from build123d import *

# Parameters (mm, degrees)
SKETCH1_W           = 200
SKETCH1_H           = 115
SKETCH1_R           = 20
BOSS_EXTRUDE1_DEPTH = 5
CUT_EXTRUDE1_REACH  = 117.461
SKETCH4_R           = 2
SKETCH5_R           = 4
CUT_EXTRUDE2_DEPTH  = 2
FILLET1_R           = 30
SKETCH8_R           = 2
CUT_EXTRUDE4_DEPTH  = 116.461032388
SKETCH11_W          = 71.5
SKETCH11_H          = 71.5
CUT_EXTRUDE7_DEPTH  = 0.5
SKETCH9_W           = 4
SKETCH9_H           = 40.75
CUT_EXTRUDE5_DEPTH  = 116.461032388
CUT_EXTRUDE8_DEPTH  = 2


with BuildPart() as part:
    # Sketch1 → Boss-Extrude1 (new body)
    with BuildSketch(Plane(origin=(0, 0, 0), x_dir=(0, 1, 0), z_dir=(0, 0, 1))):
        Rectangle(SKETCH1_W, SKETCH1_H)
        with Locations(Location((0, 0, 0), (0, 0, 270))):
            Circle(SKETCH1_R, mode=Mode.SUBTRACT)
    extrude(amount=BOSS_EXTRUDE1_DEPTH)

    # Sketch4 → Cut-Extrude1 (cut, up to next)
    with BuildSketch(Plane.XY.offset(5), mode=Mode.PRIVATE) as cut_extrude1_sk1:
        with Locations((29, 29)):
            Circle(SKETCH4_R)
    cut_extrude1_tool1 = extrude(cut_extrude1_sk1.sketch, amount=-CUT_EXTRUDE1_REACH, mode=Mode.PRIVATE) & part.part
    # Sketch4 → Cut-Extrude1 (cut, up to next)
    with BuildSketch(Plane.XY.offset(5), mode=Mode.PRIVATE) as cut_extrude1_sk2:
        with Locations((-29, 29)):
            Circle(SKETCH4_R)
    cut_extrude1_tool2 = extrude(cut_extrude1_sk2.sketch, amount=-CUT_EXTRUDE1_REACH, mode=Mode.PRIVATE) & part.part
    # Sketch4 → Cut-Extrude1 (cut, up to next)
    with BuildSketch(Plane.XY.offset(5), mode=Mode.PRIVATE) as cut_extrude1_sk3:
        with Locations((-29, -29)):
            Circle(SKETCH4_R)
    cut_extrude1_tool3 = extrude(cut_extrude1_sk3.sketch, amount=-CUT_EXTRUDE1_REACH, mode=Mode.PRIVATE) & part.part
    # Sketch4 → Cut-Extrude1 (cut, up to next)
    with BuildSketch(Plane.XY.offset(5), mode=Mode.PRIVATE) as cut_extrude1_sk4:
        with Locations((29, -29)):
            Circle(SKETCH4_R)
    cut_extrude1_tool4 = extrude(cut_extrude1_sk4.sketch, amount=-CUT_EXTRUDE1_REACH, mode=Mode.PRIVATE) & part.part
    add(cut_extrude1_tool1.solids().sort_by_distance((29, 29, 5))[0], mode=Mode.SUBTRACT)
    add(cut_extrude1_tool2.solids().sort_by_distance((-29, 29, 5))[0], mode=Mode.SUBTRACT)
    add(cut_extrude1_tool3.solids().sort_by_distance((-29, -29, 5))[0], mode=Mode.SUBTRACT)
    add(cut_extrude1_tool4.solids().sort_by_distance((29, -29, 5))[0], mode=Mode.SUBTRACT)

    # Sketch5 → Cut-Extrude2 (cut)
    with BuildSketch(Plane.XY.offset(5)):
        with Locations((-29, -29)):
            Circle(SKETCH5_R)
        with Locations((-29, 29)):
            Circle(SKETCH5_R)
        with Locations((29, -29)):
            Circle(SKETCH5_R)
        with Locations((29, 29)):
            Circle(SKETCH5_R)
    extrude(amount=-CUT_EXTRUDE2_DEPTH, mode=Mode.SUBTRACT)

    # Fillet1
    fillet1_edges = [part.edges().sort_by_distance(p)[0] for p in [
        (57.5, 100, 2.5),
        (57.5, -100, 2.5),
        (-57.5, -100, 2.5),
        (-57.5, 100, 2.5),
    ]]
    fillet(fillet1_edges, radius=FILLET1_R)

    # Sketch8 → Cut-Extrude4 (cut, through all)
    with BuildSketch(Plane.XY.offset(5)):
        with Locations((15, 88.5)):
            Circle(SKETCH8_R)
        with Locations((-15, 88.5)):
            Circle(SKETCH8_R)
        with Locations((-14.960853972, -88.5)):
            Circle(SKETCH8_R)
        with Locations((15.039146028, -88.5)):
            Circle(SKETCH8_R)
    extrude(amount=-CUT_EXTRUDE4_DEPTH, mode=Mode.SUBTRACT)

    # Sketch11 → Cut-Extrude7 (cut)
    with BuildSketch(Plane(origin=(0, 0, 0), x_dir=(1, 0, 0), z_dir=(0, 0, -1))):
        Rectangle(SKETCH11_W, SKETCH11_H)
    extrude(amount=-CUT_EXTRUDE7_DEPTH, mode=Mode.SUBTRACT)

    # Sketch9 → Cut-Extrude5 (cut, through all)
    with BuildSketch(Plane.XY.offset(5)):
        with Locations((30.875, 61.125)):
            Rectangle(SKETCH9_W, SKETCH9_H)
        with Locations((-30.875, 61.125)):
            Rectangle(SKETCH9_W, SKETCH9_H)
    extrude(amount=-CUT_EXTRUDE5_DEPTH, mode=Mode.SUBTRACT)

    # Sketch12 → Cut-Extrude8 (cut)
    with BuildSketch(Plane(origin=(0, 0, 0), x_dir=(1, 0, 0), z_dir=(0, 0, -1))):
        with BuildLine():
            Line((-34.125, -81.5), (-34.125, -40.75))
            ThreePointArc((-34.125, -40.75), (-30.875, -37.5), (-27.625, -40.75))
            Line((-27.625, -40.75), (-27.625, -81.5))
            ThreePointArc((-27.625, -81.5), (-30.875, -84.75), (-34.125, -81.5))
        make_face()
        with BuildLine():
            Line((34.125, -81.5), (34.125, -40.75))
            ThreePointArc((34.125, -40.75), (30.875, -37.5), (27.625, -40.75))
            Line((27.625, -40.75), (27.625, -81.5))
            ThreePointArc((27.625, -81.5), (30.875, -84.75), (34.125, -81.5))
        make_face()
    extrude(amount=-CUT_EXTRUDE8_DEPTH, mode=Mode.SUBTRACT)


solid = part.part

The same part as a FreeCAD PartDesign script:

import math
import FreeCAD as App
import Part
import Sketcher

V = App.Vector
Q = App.Units.Quantity


def edges_at(feature, points):
    """Names of the edges that pass closest to the given points."""
    edges = feature.Shape.Edges
    near = lambda p: min(range(len(edges)), key=lambda i: edges[i].distToShape(Part.Vertex(*p))[0])
    return sorted({f"Edge{near(p) + 1}" for p in points})

doc = App.newDocument("Part")
params = doc.addObject("Spreadsheet::Sheet", "Params")
for row, (alias, value) in enumerate([
    ("sketch1_diameter", "40 mm"),
    ("sketch1_width", "115 mm"),
    ("sketch1_height", "200 mm"),
    ("pad1_length", "5 mm"),
    ("sketch2_diameter", "4 mm"),
    ("sketch3_diameter", "4 mm"),
    ("sketch4_diameter", "4 mm"),
    ("sketch5_diameter", "4 mm"),
    ("sketch6_diameter", "8 mm"),
    ("pocket5_length", "2 mm"),
    ("fillet_radius", "30 mm"),
    ("sketch7_diameter", "4 mm"),
    ("sketch8_width", "71.5 mm"),
    ("pocket7_length", "0.5 mm"),
    ("sketch9_width", "4 mm"),
    ("sketch9_height", "40.75 mm"),
    ("sketch10_radius", "3.25 mm"),
    ("sketch10_height", "40.75 mm"),
    ("pocket9_length", "2 mm"),
], start=1):
    params.set(f"A{row}", alias)
    params.set(f"B{row}", "=" + value)
    params.setAlias(f"B{row}", alias)

body = doc.addObject("PartDesign::Body", "Body")

# Sketch on XY plane
sketch1 = doc.addObject("Sketcher::SketchObject", "Sketch")
body.addObject(sketch1)
sketch1.AttachmentSupport = (doc.XY_Plane, [""])
sketch1.MapMode = "FlatFace"
sketch1.addGeometry([
    Part.LineSegment(V(-58, -100, 0), V(58, -100, 0)),  # 0
    Part.LineSegment(V(58, -100, 0), V(58, 100, 0)),  # 1
    Part.LineSegment(V(58, 100, 0), V(-58, 100, 0)),  # 2
    Part.LineSegment(V(-58, 100, 0), V(-58, -100, 0)),  # 3
    Part.Circle(V(0, 0, 0), V(0, 0, 1), 20),  # 4
], False)
sketch1.addConstraint([
    Sketcher.Constraint("Coincident", 0, 2, 1, 1),
    Sketcher.Constraint("Coincident", 1, 2, 2, 1),
    Sketcher.Constraint("Coincident", 2, 2, 3, 1),
    Sketcher.Constraint("Coincident", 3, 2, 0, 1),
    Sketcher.Constraint("Horizontal", 0),
    Sketcher.Constraint("Vertical", 1),
    Sketcher.Constraint("Horizontal", 2),
    Sketcher.Constraint("Vertical", 3),
    Sketcher.Constraint("Coincident", 4, 3, -1, 1),
    Sketcher.Constraint("Symmetric", 0, 2, 2, 2, -1, 1),
    Sketcher.Constraint("Diameter", 4, Q("40 mm")),
    Sketcher.Constraint("DistanceX", 0, 1, 0, 2, Q("115 mm")),
    Sketcher.Constraint("DistanceY", 1, 1, 1, 2, Q("200 mm")),
])
sketch1.setExpression("Constraints[10]", "Params.sketch1_diameter")
sketch1.setExpression("Constraints[11]", "Params.sketch1_width")
sketch1.setExpression("Constraints[12]", "Params.sketch1_height")
pad1 = doc.addObject("PartDesign::Pad", "Pad")
body.addObject(pad1)
pad1.Profile = sketch1
pad1.setExpression("Length", "Params.pad1_length")

# Sketch on XY plane
sketch2 = doc.addObject("Sketcher::SketchObject", "Sketch001")
body.addObject(sketch2)
sketch2.AttachmentSupport = (doc.XY_Plane, [""])
sketch2.MapMode = "FlatFace"
sketch2.AttachmentOffset = App.Placement(V(0, 0, 5), App.Rotation())
sketch2.addGeometry(Part.Circle(V(29, 29, 0), V(0, 0, 1), 2), False)
sketch2.addConstraint([
    Sketcher.Constraint("Diameter", 0, Q("4 mm")),
    Sketcher.Constraint("DistanceX", -1, 1, 0, 3, Q("29 mm")),
    Sketcher.Constraint("DistanceY", -1, 1, 0, 3, Q("29 mm")),
])
sketch2.setExpression("Constraints[0]", "Params.sketch2_diameter")
pocket1 = doc.addObject("PartDesign::Pocket", "Pocket")
body.addObject(pocket1)
pocket1.Profile = sketch2
pocket1.Type = "UpToFirst"

# Sketch on XY plane
sketch3 = doc.addObject("Sketcher::SketchObject", "Sketch002")
body.addObject(sketch3)
sketch3.AttachmentSupport = (doc.XY_Plane, [""])
sketch3.MapMode = "FlatFace"
sketch3.AttachmentOffset = App.Placement(V(0, 0, 5), App.Rotation())
sketch3.addGeometry(Part.Circle(V(-29, 29, 0), V(0, 0, 1), 2), False)
sketch3.addConstraint([
    Sketcher.Constraint("Diameter", 0, Q("4 mm")),
    Sketcher.Constraint("DistanceX", 0, 3, -1, 1, Q("29 mm")),
    Sketcher.Constraint("DistanceY", -1, 1, 0, 3, Q("29 mm")),
])
sketch3.setExpression("Constraints[0]", "Params.sketch3_diameter")
pocket2 = doc.addObject("PartDesign::Pocket", "Pocket001")
body.addObject(pocket2)
pocket2.Profile = sketch3
pocket2.Type = "UpToFirst"

# Sketch on XY plane
sketch4 = doc.addObject("Sketcher::SketchObject", "Sketch003")
body.addObject(sketch4)
sketch4.AttachmentSupport = (doc.XY_Plane, [""])
sketch4.MapMode = "FlatFace"
sketch4.AttachmentOffset = App.Placement(V(0, 0, 5), App.Rotation())
sketch4.addGeometry(Part.Circle(V(-29, -29, 0), V(0, 0, 1), 2), False)
sketch4.addConstraint([
    Sketcher.Constraint("Diameter", 0, Q("4 mm")),
    Sketcher.Constraint("DistanceX", 0, 3, -1, 1, Q("29 mm")),
    Sketcher.Constraint("DistanceY", 0, 3, -1, 1, Q("29 mm")),
])
sketch4.setExpression("Constraints[0]", "Params.sketch4_diameter")
pocket3 = doc.addObject("PartDesign::Pocket", "Pocket002")
body.addObject(pocket3)
pocket3.Profile = sketch4
pocket3.Type = "UpToFirst"

# Sketch on XY plane
sketch5 = doc.addObject("Sketcher::SketchObject", "Sketch004")
body.addObject(sketch5)
sketch5.AttachmentSupport = (doc.XY_Plane, [""])
sketch5.MapMode = "FlatFace"
sketch5.AttachmentOffset = App.Placement(V(0, 0, 5), App.Rotation())
sketch5.addGeometry(Part.Circle(V(29, -29, 0), V(0, 0, 1), 2), False)
sketch5.addConstraint([
    Sketcher.Constraint("Diameter", 0, Q("4 mm")),
    Sketcher.Constraint("DistanceX", -1, 1, 0, 3, Q("29 mm")),
    Sketcher.Constraint("DistanceY", 0, 3, -1, 1, Q("29 mm")),
])
sketch5.setExpression("Constraints[0]", "Params.sketch5_diameter")
pocket4 = doc.addObject("PartDesign::Pocket", "Pocket003")
body.addObject(pocket4)
pocket4.Profile = sketch5
pocket4.Type = "UpToFirst"

# Sketch on XY plane
sketch6 = doc.addObject("Sketcher::SketchObject", "Sketch005")
body.addObject(sketch6)
sketch6.AttachmentSupport = (doc.XY_Plane, [""])
sketch6.MapMode = "FlatFace"
sketch6.AttachmentOffset = App.Placement(V(0, 0, 5), App.Rotation())
sketch6.addGeometry([
    Part.Circle(V(-29, -29, 0), V(0, 0, 1), 4),
    Part.Circle(V(-29, 29, 0), V(0, 0, 1), 4),
    Part.Circle(V(29, -29, 0), V(0, 0, 1), 4),
    Part.Circle(V(29, 29, 0), V(0, 0, 1), 4),
], False)
sketch6.addConstraint([
    Sketcher.Constraint("Equal", 0, 1),
    Sketcher.Constraint("Equal", 1, 2),
    Sketcher.Constraint("Equal", 2, 3),
    Sketcher.Constraint("Symmetric", 1, 3, 2, 3, -1, 1),
    Sketcher.Constraint("Symmetric", 0, 3, 3, 3, -1, 1),
    Sketcher.Constraint("Symmetric", 0, 3, 2, 3, -2),
    Sketcher.Constraint("Diameter", 0, Q("8 mm")),
    Sketcher.Constraint("DistanceX", 0, 3, -1, 1, Q("29 mm")),
    Sketcher.Constraint("DistanceY", 0, 3, -1, 1, Q("29 mm")),
])
sketch6.setExpression("Constraints[6]", "Params.sketch6_diameter")
pocket5 = doc.addObject("PartDesign::Pocket", "Pocket004")
body.addObject(pocket5)
pocket5.Profile = sketch6
pocket5.setExpression("Length", "Params.pocket5_length")
doc.recompute()

fillet = doc.addObject("PartDesign::Fillet", "Fillet")
body.addObject(fillet)
fillet.Base = (pocket5, edges_at(pocket5, [
    (57.5, 100, 2.5),
    (57.5, -100, 2.5),
    (-57.5, -100, 2.5),
    (-57.5, 100, 2.5),
]))
fillet.setExpression("Radius", "Params.fillet_radius")

# Sketch on XY plane
sketch7 = doc.addObject("Sketcher::SketchObject", "Sketch006")
body.addObject(sketch7)
sketch7.AttachmentSupport = (doc.XY_Plane, [""])
sketch7.MapMode = "FlatFace"
sketch7.AttachmentOffset = App.Placement(V(0, 0, 5), App.Rotation())
sketch7.addGeometry([
    Part.Circle(V(15, 88.5, 0), V(0, 0, 1), 2),
    Part.Circle(V(-15, 88.5, 0), V(0, 0, 1), 2),
    Part.Circle(V(-15, -88.5, 0), V(0, 0, 1), 2),
    Part.Circle(V(15, -88.5, 0), V(0, 0, 1), 2),
], False)
sketch7.addConstraint([
    Sketcher.Constraint("Equal", 0, 1),
    Sketcher.Constraint("Equal", 1, 2),
    Sketcher.Constraint("Equal", 2, 3),
    Sketcher.Constraint("Symmetric", 0, 3, 1, 3, -2),
    Sketcher.Constraint("Horizontal", 2, 3, 3, 3),
    Sketcher.Constraint("Diameter", 0, Q("4 mm")),
    Sketcher.Constraint("DistanceX", -1, 1, 0, 3, Q("15 mm")),
    Sketcher.Constraint("DistanceY", 2, 3, 1, 3, Q("177 mm")),
    Sketcher.Constraint("DistanceX", 2, 3, 3, 3, Q("30 mm")),
    Sketcher.Constraint("DistanceY", -1, 1, 0, 3, Q("88.5 mm")),
    Sketcher.Constraint("DistanceX", 2, 3, -1, 1, Q("14.960854 mm")),
])
sketch7.setExpression("Constraints[5]", "Params.sketch7_diameter")
pocket6 = doc.addObject("PartDesign::Pocket", "Pocket005")
body.addObject(pocket6)
pocket6.Profile = sketch7
pocket6.Type = "ThroughAll"

# Sketch on XY plane
sketch8 = doc.addObject("Sketcher::SketchObject", "Sketch007")
body.addObject(sketch8)
sketch8.AttachmentSupport = (doc.XY_Plane, [""])
sketch8.MapMode = "FlatFace"
sketch8.addGeometry([
    Part.LineSegment(V(-36, -36, 0), V(-36, 36, 0)),
    Part.LineSegment(V(-36, 36, 0), V(36, 36, 0)),
    Part.LineSegment(V(36, 36, 0), V(36, -36, 0)),
    Part.LineSegment(V(36, -36, 0), V(-36, -36, 0)),
], False)
sketch8.addConstraint([
    Sketcher.Constraint("Coincident", 0, 2, 1, 1),
    Sketcher.Constraint("Coincident", 1, 2, 2, 1),
    Sketcher.Constraint("Coincident", 2, 2, 3, 1),
    Sketcher.Constraint("Coincident", 3, 2, 0, 1),
    Sketcher.Constraint("Vertical", 0),
    Sketcher.Constraint("Horizontal", 1),
    Sketcher.Constraint("Vertical", 2),
    Sketcher.Constraint("Horizontal", 3),
    Sketcher.Constraint("Symmetric", 0, 2, 2, 2, -1, 1),
    Sketcher.Constraint("Equal", 3, 0),
    Sketcher.Constraint("DistanceX", 1, 1, 1, 2, Q("71.5 mm")),
])
sketch8.setExpression("Constraints[10]", "Params.sketch8_width")
pocket7 = doc.addObject("PartDesign::Pocket", "Pocket006")
body.addObject(pocket7)
pocket7.Profile = sketch8
pocket7.setExpression("Length", "Params.pocket7_length")
pocket7.Reversed = True

# Sketch on XY plane
sketch9 = doc.addObject("Sketcher::SketchObject", "Sketch008")
body.addObject(sketch9)
sketch9.AttachmentSupport = (doc.XY_Plane, [""])
sketch9.MapMode = "FlatFace"
sketch9.AttachmentOffset = App.Placement(V(0, 0, 5), App.Rotation())
sketch9.addGeometry([
    Part.LineSegment(V(28.9, 81.5, 0), V(28.9, 40.8, 0)),  # 0
    Part.LineSegment(V(28.9, 40.8, 0), V(32.9, 40.8, 0)),  # 1
    Part.LineSegment(V(32.9, 40.8, 0), V(32.9, 81.5, 0)),  # 2
    Part.LineSegment(V(32.9, 81.5, 0), V(28.9, 81.5, 0)),  # 3
    Part.LineSegment(V(-32.9, 81.5, 0), V(-32.9, 40.8, 0)),  # 4
    Part.LineSegment(V(-32.9, 40.8, 0), V(-28.9, 40.8, 0)),  # 5
    Part.LineSegment(V(-28.9, 40.8, 0), V(-28.9, 81.5, 0)),  # 6
    Part.LineSegment(V(-28.9, 81.5, 0), V(-32.9, 81.5, 0)),  # 7
], False)
sketch9.addConstraint([
    Sketcher.Constraint("Coincident", 0, 2, 1, 1),
    Sketcher.Constraint("Coincident", 1, 2, 2, 1),
    Sketcher.Constraint("Coincident", 2, 2, 3, 1),
    Sketcher.Constraint("Coincident", 3, 2, 0, 1),
    Sketcher.Constraint("Coincident", 4, 2, 5, 1),
    Sketcher.Constraint("Coincident", 5, 2, 6, 1),
    Sketcher.Constraint("Coincident", 6, 2, 7, 1),
    Sketcher.Constraint("Coincident", 7, 2, 4, 1),
    Sketcher.Constraint("Vertical", 0),
    Sketcher.Constraint("Horizontal", 1),
    Sketcher.Constraint("Vertical", 2),
    Sketcher.Constraint("Horizontal", 3),
    Sketcher.Constraint("Vertical", 4),
    Sketcher.Constraint("Horizontal", 5),
    Sketcher.Constraint("Vertical", 6),
    Sketcher.Constraint("Horizontal", 7),
    Sketcher.Constraint("Symmetric", 1, 2, 4, 2, -2),
    Sketcher.Constraint("Symmetric", 3, 2, 6, 2, -2),
    Sketcher.Constraint("DistanceX", 1, 1, 1, 2, Q("4 mm")),
    Sketcher.Constraint("DistanceY", 0, 2, 0, 1, Q("40.75 mm")),
    Sketcher.Constraint("DistanceY", -1, 1, 2, 2, Q("81.5 mm")),
    Sketcher.Constraint("DistanceX", 4, 2, 0, 2, Q("61.75 mm")),
])
sketch9.setExpression("Constraints[18]", "Params.sketch9_width")
sketch9.setExpression("Constraints[19]", "Params.sketch9_height")
pocket8 = doc.addObject("PartDesign::Pocket", "Pocket007")
body.addObject(pocket8)
pocket8.Profile = sketch9
pocket8.Type = "ThroughAll"

# Sketch on XY plane
sketch10 = doc.addObject("Sketcher::SketchObject", "Sketch009")
body.addObject(sketch10)
sketch10.AttachmentSupport = (doc.XY_Plane, [""])
sketch10.MapMode = "FlatFace"
sketch10.addGeometry([
    Part.LineSegment(V(-34.1, 40.8, 0), V(-34.1, 81.5, 0)),  # 0
    Part.ArcOfCircle(Part.Circle(V(-30.9, 81.5, 0), V(0, 0, 1), 3.2), math.radians(0), math.radians(180)),  # 1
    Part.LineSegment(V(-27.6, 81.5, 0), V(-27.6, 40.8, 0)),  # 2
    Part.ArcOfCircle(Part.Circle(V(-30.9, 40.8, 0), V(0, 0, 1), 3.2), math.radians(180), math.radians(360)),  # 3
    Part.LineSegment(V(34.1, 81.5, 0), V(34.1, 40.8, 0)),  # 4
    Part.ArcOfCircle(Part.Circle(V(30.9, 40.8, 0), V(0, 0, 1), 3.2), math.radians(180), math.radians(360)),  # 5
    Part.LineSegment(V(27.6, 40.8, 0), V(27.6, 81.5, 0)),  # 6
    Part.ArcOfCircle(Part.Circle(V(30.9, 81.5, 0), V(0, 0, 1), 3.2), math.radians(0), math.radians(180)),  # 7
], False)
sketch10.addConstraint([
    Sketcher.Constraint("Tangent", 0, 2, 1, 2),
    Sketcher.Constraint("Tangent", 1, 1, 2, 1),
    Sketcher.Constraint("Tangent", 2, 2, 3, 2),
    Sketcher.Constraint("Tangent", 3, 1, 0, 1),
    Sketcher.Constraint("Tangent", 4, 2, 5, 2),
    Sketcher.Constraint("Tangent", 5, 1, 6, 1),
    Sketcher.Constraint("Tangent", 6, 2, 7, 2),
    Sketcher.Constraint("Tangent", 7, 1, 4, 1),
    Sketcher.Constraint("Vertical", 0),
    Sketcher.Constraint("Vertical", 2),
    Sketcher.Constraint("Vertical", 4),
    Sketcher.Constraint("Vertical", 6),
    Sketcher.Constraint("Equal", 3, 5),
    Sketcher.Constraint("Symmetric", 3, 3, 5, 3, -2),
    Sketcher.Constraint("Horizontal", 1, 3, 7, 3),
    Sketcher.Constraint("Radius", 1, Q("3.25 mm")),
    Sketcher.Constraint("DistanceX", 0, 2, 7, 3, Q("65 mm")),
    Sketcher.Constraint("DistanceY", 0, 1, 0, 2, Q("40.75 mm")),
    Sketcher.Constraint("DistanceY", -1, 1, 1, 3, Q("81.5 mm")),
])
sketch10.setExpression("Constraints[15]", "Params.sketch10_radius")
sketch10.setExpression("Constraints[17]", "Params.sketch10_height")
pocket9 = doc.addObject("PartDesign::Pocket", "Pocket008")
body.addObject(pocket9)
pocket9.Profile = sketch10
pocket9.setExpression("Length", "Params.pocket9_length")
pocket9.Reversed = True

doc.recompute()
